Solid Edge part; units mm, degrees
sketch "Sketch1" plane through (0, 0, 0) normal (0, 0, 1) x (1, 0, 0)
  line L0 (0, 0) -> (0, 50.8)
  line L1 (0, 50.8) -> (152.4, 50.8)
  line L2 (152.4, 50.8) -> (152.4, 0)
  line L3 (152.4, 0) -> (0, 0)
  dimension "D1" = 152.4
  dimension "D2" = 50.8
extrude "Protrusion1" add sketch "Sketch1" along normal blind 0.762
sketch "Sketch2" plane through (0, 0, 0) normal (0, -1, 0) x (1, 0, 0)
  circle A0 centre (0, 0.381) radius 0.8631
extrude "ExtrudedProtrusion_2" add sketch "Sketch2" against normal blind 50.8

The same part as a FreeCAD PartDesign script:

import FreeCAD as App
import Part
import Sketcher
Q = App.Units.Quantity

doc = App.newDocument("Part")
body = doc.addObject("PartDesign::Body", "Body")

# Sketch on XY plane
sketch1 = doc.addObject("Sketcher::SketchObject", "Sketch")
body.addObject(sketch1)
sketch1.AttachmentSupport = (doc.XY_Plane, [""])
sketch1.MapMode = "FlatFace"
sketch1.addGeometry([
    Part.LineSegment(App.Vector(0, 50.8, 0), App.Vector(0, 0, 0)),
    Part.LineSegment(App.Vector(0, 0, 0), App.Vector(152.4, 0, 0)),
    Part.LineSegment(App.Vector(152.4, 0, 0), App.Vector(152.4, 50.8, 0)),
    Part.LineSegment(App.Vector(152.4, 50.8, 0), App.Vector(0, 50.8, 0)),
], False)
sketch1.addConstraint([
    Sketcher.Constraint("Coincident", 0, 2, 1, 1),
    Sketcher.Constraint("Coincident", 1, 2, 2, 1),
    Sketcher.Constraint("Coincident", 2, 2, 3, 1),
    Sketcher.Constraint("Coincident", 3, 2, 0, 1),
    Sketcher.Constraint("Vertical", 0),
    Sketcher.Constraint("Horizontal", 1),
    Sketcher.Constraint("Vertical", 2),
    Sketcher.Constraint("Horizontal", 3),
    Sketcher.Constraint("Coincident", 0, 2, -1, 1),
    Sketcher.Constraint("DistanceX", 1, 1, 1, 2, Q("6 in")),
    Sketcher.Constraint("DistanceY", 0, 2, 0, 1, Q("2 in")),
])
pad1 = doc.addObject("PartDesign::Pad", "Pad")
body.addObject(pad1)
pad1.Profile = sketch1
pad1.Length = Q("0.03 in")

# Sketch on XZ plane
sketch2 = doc.addObject("Sketcher::SketchObject", "Sketch001")
body.addObject(sketch2)
sketch2.AttachmentSupport = (doc.XZ_Plane, [""])
sketch2.MapMode = "FlatFace"
sketch2.addGeometry(Part.Circle(App.Vector(0, 0.381, 0), App.Vector(0, 0, 1), 0.8631), False)
sketch2.addConstraint([
    Sketcher.Constraint("PointOnObject", 0, 3, -2),
    Sketcher.Constraint("Diameter", 0, 1.7262),
    Sketcher.Constraint("DistanceY", -1, 1, 0, 3, Q("0.015 in")),
])
pad2 = doc.addObject("PartDesign::Pad", "Pad001")
body.addObject(pad2)
pad2.Profile = sketch2
pad2.Length = Q("2 in")
pad2.Reversed = True

doc.recompute()
